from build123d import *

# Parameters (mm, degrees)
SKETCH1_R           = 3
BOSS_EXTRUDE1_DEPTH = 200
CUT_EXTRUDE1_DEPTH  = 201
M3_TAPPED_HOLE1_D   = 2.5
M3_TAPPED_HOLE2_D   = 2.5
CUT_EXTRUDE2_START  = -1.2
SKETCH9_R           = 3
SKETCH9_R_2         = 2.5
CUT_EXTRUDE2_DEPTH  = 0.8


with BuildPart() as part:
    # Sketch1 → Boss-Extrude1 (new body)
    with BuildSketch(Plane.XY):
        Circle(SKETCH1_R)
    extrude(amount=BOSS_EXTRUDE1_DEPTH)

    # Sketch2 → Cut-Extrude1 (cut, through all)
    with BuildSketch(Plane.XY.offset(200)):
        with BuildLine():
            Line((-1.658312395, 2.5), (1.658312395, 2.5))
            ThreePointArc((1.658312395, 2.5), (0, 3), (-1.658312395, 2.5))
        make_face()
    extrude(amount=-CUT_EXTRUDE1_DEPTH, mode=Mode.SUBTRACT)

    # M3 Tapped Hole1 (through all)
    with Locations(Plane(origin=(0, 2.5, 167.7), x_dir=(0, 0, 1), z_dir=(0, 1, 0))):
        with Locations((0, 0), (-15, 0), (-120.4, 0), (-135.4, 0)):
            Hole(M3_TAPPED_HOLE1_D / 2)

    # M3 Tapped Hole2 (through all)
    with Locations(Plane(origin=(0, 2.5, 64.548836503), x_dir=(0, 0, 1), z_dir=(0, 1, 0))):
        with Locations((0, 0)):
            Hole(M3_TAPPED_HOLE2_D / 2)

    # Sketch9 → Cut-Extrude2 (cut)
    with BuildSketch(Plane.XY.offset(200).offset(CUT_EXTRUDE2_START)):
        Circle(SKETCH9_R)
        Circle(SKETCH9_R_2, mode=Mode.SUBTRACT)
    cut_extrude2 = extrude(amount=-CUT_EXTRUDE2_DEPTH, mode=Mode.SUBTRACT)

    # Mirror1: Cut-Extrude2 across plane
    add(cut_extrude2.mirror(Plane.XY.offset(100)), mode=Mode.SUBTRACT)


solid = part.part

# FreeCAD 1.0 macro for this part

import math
import FreeCAD as App
import Part
import Sketcher

V = App.Vector

doc = App.newDocument("Part")
body = doc.addObject("PartDesign::Body", "Body")

sketch1 = body.newObject("Sketcher::SketchObject", "Sketch")
sketch1.AttachmentSupport = (doc.getObject("XY_Plane"), [""])
sketch1.MapMode = "FlatFace"
sketch1.addGeometry(Part.Circle(V(0, 0, 0), V(0, 0, 1), 3), False)
sketch1.addConstraint([
    Sketcher.Constraint("Coincident", 0, 3, -1, 1),
    Sketcher.Constraint("Diameter", 0, 6.0),
])
pad1 = body.newObject("PartDesign::Pad", "Pad")
pad1.Profile = sketch1
pad1.Length = 200

sketch2 = body.newObject("Sketcher::SketchObject", "Sketch001")
sketch2.AttachmentSupport = (doc.getObject("XY_Plane"), [""])
sketch2.MapMode = "FlatFace"
sketch2.AttachmentOffset = App.Placement(V(0, 0, 200), App.Rotation())
sketch2.addGeometry([
    Part.LineSegment(V(-1.7, 2.5, 0), V(1.7, 2.5, 0)),
    Part.ArcOfCircle(Part.Circle(V(0, 0, 0), V(0, 0, 1), 3), math.radians(56), math.radians(124)),
], False)
sketch2.addConstraint([
    Sketcher.Constraint("Coincident", 0, 1, 1, 2),
    Sketcher.Constraint("Coincident", 1, 1, 0, 2),
    Sketcher.Constraint("Horizontal", 0),
    Sketcher.Constraint("Coincident", 1, 3, -1, 1),
    Sketcher.Constraint("Radius", 1, 3.0),
    Sketcher.Constraint("DistanceY", -1, 1, 0, 1, 2.5),
])
pocket1 = body.newObject("PartDesign::Pocket", "Pocket")
pocket1.Profile = sketch2
pocket1.Type = "ThroughAll"

sketch3 = body.newObject("Sketcher::SketchObject", "Sketch002")
sketch3.AttachmentSupport = (doc.getObject("XZ_Plane"), [""])
sketch3.MapMode = "FlatFace"
sketch3.AttachmentOffset = App.Placement(V(0, 0, -2.5), App.Rotation())
sketch3.addGeometry([
    Part.Circle(V(0, 167.7, 0), V(0, 0, 1), 1.2),
    Part.Circle(V(0, 152.7, 0), V(0, 0, 1), 1.2),
    Part.Circle(V(0, 47.3, 0), V(0, 0, 1), 1.2),
    Part.Circle(V(0, 32.3, 0), V(0, 0, 1), 1.2),
], False)
sketch3.addConstraint([
    Sketcher.Constraint("Equal", 0, 1),
    Sketcher.Constraint("Equal", 1, 2),
    Sketcher.Constraint("Equal", 2, 3),
    Sketcher.Constraint("PointOnObject", 0, 3, -2),
    Sketcher.Constraint("PointOnObject", 1, 3, -2),
    Sketcher.Constraint("PointOnObject", 2, 3, -2),
    Sketcher.Constraint("PointOnObject", 3, 3, -2),
    Sketcher.Constraint("Diameter", 0, 2.5),
    Sketcher.Constraint("DistanceY", 1, 3, 0, 3, 15.0),
    Sketcher.Constraint("DistanceY", 3, 3, 2, 3, 15.0),
    Sketcher.Constraint("DistanceY", -1, 1, 0, 3, 167.7),
    Sketcher.Constraint("DistanceY", -1, 1, 2, 3, 47.3),
])
doc.recompute()
hole = body.newObject("PartDesign::Hole", "Hole")
hole.Profile = sketch3
hole.ThreadType = "None"
hole.Diameter = 2.5
hole.DepthType = "ThroughAll"
hole.Reversed = True

sketch4 = body.newObject("Sketcher::SketchObject", "Sketch003")
sketch4.AttachmentSupport = (doc.getObject("XZ_Plane"), [""])
sketch4.MapMode = "FlatFace"
sketch4.AttachmentOffset = App.Placement(V(0, 0, -2.5), App.Rotation())
sketch4.addGeometry(Part.Circle(V(0, 64.5, 0), V(0, 0, 1), 1.2), False)
sketch4.addConstraint([
    Sketcher.Constraint("PointOnObject", 0, 3, -2),
    Sketcher.Constraint("Diameter", 0, 2.5),
    Sketcher.Constraint("DistanceY", -1, 1, 0, 3, 64.548837),
])
doc.recompute()
hole2 = body.newObject("PartDesign::Hole", "Hole001")
hole2.Profile = sketch4
hole2.ThreadType = "None"
hole2.Diameter = 2.5
hole2.DepthType = "ThroughAll"
hole2.Reversed = True

sketch5 = body.newObject("Sketcher::SketchObject", "Sketch004")
sketch5.AttachmentSupport = (doc.getObject("XY_Plane"), [""])
sketch5.MapMode = "FlatFace"
sketch5.AttachmentOffset = App.Placement(V(0, 0, 198.8), App.Rotation())
sketch5.addGeometry([
    Part.Circle(V(0, 0, 0), V(0, 0, 1), 3),
    Part.Circle(V(0, 0, 0), V(0, 0, 1), 2.5),
], False)
sketch5.addConstraint([
    Sketcher.Constraint("Coincident", 0, 3, -1, 1),
    Sketcher.Constraint("Coincident", 1, 3, -1, 1),
    Sketcher.Constraint("Diameter", 0, 6.0),
    Sketcher.Constraint("Diameter", 1, 5.0),
])
pocket2 = body.newObject("PartDesign::Pocket", "Pocket001")
pocket2.Profile = sketch5
pocket2.Length = 0.8
doc.recompute()

datumplane = body.newObject("PartDesign::Plane", "DatumPlane")
datumplane.AttachmentSupport = (doc.getObject("XY_Plane"), [""])
datumplane.MapMode = "FlatFace"
datumplane.AttachmentOffset = App.Placement(V(0, 0, 100), App.Rotation())
mirrored = body.newObject("PartDesign::Mirrored", "Mirrored")
mirrored.Originals = [pocket2]
mirrored.MirrorPlane = (datumplane, [""])
body.Tip = mirrored

doc.recompute()
